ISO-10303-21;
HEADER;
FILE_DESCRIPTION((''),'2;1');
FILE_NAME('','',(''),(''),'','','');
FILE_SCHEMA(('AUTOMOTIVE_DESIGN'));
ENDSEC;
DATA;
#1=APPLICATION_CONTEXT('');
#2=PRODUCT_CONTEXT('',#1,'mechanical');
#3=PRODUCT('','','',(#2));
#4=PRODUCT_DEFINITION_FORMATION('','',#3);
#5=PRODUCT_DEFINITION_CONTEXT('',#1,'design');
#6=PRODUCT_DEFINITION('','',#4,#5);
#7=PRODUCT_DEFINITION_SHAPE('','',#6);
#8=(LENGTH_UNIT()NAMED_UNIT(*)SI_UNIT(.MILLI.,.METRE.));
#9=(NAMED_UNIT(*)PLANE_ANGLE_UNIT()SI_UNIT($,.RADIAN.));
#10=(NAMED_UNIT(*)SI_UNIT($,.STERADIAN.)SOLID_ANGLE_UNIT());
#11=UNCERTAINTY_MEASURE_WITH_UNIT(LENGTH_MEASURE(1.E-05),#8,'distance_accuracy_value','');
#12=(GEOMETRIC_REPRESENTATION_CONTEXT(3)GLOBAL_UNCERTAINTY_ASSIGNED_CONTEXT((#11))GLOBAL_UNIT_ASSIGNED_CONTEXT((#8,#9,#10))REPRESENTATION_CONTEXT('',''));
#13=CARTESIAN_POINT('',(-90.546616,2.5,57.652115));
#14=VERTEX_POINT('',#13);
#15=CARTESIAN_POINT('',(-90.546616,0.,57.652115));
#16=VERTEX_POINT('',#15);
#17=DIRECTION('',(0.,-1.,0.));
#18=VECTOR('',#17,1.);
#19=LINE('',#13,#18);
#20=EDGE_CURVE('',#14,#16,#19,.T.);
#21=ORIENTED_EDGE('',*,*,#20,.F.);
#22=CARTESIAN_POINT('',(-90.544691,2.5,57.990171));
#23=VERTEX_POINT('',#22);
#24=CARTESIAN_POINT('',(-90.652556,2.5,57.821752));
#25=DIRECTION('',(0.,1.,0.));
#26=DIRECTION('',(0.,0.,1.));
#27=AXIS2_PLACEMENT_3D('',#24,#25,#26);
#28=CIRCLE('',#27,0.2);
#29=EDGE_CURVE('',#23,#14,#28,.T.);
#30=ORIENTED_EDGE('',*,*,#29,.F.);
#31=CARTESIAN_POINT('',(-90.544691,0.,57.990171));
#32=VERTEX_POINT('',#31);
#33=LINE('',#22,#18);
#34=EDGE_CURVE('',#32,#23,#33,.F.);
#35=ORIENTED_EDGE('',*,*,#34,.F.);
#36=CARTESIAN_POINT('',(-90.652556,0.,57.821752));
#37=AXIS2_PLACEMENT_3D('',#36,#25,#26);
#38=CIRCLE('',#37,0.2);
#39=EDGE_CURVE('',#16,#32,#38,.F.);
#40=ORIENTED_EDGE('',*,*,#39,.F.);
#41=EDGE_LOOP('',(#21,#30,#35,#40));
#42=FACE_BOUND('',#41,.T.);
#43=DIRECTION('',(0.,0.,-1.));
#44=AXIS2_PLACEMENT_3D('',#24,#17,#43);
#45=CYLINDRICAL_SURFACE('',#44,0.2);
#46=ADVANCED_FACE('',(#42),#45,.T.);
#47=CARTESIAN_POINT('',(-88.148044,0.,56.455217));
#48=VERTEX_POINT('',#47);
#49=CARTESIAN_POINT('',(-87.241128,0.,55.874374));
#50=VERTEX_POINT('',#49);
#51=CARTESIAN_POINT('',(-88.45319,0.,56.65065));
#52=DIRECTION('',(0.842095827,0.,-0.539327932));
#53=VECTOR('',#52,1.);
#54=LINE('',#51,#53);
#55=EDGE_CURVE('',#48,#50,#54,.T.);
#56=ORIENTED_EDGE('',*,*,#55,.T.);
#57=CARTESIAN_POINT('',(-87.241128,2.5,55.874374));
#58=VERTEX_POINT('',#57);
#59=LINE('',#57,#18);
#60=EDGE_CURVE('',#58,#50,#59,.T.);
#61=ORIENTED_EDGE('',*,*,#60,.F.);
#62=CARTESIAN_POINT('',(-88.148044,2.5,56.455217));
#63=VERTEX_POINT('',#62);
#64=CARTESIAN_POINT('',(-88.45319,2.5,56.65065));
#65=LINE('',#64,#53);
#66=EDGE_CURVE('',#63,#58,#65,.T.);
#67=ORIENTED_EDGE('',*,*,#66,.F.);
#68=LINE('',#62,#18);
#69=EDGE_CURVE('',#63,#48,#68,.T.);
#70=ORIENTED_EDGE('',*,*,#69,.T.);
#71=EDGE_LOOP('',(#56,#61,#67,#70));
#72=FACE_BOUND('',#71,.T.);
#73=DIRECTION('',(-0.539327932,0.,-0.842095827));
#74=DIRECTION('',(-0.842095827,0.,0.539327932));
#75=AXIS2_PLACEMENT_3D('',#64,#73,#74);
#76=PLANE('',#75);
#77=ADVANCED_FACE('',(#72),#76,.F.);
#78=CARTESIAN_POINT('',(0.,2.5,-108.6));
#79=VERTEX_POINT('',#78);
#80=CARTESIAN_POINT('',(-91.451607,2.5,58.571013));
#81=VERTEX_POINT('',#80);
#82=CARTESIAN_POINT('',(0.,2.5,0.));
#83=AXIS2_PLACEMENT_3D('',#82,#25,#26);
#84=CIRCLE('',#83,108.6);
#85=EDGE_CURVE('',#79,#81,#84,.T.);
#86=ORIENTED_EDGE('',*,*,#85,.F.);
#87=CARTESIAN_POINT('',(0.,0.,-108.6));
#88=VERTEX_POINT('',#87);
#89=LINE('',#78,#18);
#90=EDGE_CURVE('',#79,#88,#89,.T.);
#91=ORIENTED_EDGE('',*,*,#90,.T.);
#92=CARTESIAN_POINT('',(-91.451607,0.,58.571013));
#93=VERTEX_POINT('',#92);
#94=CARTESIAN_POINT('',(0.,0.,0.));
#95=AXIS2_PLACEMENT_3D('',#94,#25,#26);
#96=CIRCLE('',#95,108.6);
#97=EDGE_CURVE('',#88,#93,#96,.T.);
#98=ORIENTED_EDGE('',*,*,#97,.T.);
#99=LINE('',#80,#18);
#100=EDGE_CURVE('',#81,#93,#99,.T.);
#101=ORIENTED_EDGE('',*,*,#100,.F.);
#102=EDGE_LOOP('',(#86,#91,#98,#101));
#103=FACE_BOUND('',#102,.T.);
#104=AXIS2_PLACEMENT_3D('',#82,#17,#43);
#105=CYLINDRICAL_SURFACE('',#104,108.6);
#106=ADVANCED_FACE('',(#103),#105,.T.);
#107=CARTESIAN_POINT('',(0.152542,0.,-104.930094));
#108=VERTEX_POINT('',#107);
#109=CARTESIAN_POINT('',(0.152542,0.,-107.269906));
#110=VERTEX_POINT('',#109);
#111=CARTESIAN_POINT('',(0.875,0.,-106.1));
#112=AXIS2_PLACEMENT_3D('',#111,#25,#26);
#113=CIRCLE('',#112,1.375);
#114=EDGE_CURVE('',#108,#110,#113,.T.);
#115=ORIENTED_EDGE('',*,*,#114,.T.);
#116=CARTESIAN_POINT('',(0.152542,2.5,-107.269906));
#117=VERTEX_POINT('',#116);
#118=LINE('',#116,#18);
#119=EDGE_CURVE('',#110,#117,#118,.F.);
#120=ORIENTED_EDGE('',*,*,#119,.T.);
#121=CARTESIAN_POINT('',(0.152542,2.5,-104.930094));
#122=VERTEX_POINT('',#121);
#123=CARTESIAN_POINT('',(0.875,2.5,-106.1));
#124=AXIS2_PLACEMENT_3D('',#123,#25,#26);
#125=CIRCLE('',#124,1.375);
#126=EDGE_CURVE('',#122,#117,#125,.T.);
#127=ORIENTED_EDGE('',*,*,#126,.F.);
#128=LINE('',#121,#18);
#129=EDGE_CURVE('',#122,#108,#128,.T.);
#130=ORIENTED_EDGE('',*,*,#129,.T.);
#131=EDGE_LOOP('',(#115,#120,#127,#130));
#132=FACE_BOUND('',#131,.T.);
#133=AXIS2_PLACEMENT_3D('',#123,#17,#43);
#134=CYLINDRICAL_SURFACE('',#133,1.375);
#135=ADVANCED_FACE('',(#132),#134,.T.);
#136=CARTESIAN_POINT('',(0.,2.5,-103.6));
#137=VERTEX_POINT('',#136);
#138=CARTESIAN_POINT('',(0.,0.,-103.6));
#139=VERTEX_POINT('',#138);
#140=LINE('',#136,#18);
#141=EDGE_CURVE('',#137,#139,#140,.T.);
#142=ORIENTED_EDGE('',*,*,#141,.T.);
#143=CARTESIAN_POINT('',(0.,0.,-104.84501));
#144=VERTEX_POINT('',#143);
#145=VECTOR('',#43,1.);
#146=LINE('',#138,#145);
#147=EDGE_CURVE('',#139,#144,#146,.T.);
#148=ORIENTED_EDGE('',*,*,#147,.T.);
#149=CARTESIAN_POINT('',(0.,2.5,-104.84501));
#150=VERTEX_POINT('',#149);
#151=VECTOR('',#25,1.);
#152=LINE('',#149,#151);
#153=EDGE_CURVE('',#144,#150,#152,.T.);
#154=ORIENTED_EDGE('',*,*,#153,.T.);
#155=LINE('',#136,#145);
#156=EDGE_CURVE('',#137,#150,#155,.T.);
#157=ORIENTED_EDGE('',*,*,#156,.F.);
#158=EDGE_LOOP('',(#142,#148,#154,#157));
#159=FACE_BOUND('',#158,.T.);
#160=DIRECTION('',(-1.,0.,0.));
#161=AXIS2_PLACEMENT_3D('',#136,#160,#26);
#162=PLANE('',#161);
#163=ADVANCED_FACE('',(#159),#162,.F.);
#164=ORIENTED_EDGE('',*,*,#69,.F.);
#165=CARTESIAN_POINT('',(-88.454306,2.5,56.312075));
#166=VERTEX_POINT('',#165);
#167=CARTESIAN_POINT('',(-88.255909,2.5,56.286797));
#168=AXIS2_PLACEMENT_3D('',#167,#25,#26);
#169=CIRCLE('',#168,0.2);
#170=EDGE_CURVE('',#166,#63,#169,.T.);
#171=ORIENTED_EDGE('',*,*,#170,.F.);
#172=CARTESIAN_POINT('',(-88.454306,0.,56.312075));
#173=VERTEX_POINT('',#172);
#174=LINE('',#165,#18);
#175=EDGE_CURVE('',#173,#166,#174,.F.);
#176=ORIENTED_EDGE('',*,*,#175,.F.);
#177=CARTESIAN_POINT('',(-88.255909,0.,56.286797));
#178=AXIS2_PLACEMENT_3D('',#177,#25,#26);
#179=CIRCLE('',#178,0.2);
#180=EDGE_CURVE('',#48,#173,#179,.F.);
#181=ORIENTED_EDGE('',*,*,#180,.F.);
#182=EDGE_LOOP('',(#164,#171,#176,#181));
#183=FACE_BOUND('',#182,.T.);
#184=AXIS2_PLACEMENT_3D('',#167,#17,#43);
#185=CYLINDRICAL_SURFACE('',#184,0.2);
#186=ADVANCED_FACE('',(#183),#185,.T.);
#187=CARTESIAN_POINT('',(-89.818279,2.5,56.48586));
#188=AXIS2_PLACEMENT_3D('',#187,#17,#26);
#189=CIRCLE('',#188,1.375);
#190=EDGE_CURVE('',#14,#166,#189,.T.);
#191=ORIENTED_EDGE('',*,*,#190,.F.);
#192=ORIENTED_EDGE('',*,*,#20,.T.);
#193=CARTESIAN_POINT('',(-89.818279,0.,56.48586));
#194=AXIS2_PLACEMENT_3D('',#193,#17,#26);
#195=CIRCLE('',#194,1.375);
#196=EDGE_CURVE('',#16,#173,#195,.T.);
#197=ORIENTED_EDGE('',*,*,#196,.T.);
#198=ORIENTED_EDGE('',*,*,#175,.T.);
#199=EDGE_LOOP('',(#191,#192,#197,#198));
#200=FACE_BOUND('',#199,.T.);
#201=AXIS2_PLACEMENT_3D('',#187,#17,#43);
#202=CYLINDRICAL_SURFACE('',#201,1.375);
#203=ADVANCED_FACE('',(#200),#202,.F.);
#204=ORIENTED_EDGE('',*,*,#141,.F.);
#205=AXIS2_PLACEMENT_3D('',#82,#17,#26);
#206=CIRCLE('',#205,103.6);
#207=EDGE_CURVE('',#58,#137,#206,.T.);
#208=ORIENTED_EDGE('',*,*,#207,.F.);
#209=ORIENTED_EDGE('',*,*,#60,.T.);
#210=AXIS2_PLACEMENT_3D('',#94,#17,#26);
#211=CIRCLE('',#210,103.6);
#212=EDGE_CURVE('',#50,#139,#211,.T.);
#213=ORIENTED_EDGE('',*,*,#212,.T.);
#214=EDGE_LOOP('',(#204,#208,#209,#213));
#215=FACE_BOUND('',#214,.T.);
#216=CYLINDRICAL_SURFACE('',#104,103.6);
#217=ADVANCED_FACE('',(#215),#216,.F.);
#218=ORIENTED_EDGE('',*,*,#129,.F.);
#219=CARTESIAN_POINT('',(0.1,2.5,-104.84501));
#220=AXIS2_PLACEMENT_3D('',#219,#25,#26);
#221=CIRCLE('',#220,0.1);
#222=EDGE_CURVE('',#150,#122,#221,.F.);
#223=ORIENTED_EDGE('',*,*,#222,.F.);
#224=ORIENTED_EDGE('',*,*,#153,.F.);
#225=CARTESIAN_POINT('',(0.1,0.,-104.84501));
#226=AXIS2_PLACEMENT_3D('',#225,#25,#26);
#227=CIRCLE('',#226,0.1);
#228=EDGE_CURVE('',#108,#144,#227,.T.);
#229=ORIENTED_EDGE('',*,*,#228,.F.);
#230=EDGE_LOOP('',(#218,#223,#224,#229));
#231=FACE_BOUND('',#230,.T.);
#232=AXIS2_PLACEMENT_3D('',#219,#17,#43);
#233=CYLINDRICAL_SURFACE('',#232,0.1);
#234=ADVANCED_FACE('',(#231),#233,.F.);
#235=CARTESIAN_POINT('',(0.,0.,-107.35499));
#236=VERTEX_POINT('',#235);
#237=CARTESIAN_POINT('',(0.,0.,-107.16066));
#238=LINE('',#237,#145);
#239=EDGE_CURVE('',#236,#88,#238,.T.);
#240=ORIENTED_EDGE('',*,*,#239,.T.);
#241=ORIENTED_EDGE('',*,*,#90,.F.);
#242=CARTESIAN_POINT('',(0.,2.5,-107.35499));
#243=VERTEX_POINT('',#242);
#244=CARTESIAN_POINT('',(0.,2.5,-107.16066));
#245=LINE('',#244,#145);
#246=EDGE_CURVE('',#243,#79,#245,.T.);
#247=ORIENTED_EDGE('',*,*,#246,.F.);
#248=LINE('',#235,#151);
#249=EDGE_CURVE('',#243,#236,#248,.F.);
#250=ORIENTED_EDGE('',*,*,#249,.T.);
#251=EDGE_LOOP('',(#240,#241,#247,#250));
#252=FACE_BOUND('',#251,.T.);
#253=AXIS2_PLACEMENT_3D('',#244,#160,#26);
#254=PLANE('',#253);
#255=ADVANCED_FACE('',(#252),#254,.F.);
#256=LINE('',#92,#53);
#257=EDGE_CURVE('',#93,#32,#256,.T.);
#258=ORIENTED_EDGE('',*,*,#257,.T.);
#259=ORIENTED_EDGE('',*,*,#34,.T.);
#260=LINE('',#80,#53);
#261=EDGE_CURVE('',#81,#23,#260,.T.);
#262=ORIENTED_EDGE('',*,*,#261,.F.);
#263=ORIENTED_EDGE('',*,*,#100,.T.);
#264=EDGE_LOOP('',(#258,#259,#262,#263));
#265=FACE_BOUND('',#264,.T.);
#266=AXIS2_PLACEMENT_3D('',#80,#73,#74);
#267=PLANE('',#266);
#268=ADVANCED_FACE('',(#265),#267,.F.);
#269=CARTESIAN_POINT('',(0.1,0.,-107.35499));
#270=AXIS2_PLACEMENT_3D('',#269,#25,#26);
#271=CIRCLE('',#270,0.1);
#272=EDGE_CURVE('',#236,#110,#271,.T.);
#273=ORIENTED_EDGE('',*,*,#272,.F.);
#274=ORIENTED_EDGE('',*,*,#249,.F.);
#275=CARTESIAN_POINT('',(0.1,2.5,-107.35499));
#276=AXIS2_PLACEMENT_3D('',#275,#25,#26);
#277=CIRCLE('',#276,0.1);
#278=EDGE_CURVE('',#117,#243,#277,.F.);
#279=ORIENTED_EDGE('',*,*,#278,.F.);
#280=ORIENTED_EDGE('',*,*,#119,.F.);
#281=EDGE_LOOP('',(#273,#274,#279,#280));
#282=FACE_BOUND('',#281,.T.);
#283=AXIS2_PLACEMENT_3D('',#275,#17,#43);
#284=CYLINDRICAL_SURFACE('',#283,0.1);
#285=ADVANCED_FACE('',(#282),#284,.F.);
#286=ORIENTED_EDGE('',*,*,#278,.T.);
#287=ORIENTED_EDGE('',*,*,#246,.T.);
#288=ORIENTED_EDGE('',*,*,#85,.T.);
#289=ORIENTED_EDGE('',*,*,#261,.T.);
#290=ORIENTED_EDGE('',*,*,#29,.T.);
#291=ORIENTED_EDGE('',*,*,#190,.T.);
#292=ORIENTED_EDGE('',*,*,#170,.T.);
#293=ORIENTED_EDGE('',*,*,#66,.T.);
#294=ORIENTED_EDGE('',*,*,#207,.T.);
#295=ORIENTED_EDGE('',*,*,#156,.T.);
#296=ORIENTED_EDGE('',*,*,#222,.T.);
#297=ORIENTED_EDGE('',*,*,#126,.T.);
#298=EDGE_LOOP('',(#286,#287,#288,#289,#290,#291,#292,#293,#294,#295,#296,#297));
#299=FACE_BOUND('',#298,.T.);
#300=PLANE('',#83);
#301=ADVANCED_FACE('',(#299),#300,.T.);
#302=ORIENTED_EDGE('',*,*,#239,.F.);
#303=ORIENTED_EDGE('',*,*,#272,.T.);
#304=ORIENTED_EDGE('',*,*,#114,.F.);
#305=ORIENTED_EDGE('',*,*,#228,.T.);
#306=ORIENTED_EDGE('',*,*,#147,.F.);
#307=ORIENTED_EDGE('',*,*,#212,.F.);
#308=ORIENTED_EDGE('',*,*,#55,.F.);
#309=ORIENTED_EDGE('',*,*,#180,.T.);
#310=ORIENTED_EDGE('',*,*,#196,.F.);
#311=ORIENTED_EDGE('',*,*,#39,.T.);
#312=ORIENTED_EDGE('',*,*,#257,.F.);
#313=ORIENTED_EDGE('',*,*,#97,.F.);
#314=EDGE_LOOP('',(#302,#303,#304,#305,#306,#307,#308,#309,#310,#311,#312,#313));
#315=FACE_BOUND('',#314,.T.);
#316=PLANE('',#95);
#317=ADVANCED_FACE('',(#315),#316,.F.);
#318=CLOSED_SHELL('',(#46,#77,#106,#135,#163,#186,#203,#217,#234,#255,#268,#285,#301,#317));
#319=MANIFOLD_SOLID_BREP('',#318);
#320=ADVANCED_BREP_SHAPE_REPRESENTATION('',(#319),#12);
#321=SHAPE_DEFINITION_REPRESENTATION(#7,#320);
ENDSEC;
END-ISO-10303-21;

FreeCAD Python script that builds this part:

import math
import FreeCAD as App
import Part
import Sketcher
from FreeCAD import Vector
Q = App.Units.Quantity


def edges_at(feature, points):
    """Names of the edges that pass closest to the given points."""
    edges = feature.Shape.Edges
    near = lambda p: min(range(len(edges)), key=lambda i: edges[i].distToShape(Part.Vertex(*p))[0])
    return sorted({f"Edge{near(p) + 1}" for p in points})

doc = App.newDocument("Part")
body = doc.addObject("PartDesign::Body", "Body")

sketch1 = doc.addObject("Sketcher::SketchObject", "Sketch")
body.addObject(sketch1)
sketch1.AttachmentSupport = (doc.XZ_Plane, [""])
sketch1.MapMode = "FlatFace"
sketch1.addGeometry([
    Part.LineSegment(Vector(0, -103.6, 0), Vector(0, -105.03934, 0)),
    Part.ArcOfCircle(Part.Circle(Vector(0.875, -106.1, 0), Vector(0, 0, 1), 1.375), math.radians(-129.521196), math.radians(129.521196)),
    Part.LineSegment(Vector(0, -107.16066, 0), Vector(0, -108.6, 0)),
    Part.ArcOfCircle(Part.Circle(Vector(0, 0, 0), Vector(0, 0, 1), 108.6), math.radians(147.3621), math.radians(270)),
    Part.LineSegment(Vector(-91.451607, 58.571013, 0), Vector(-90.239545, 57.794737, 0)),
    Part.ArcOfCircle(Part.Circle(Vector(-89.818279, 56.48586, 0), Vector(0, 0, 1), 1.375), math.radians(107.840904), math.radians(366.883296)),
    Part.LineSegment(Vector(-88.45319, 56.65065, 0), Vector(-87.241128, 55.874374, 0)),
    Part.ArcOfCircle(Part.Circle(Vector(0, 0, 0), Vector(0, 0, 1), 103.6), math.radians(147.3621), math.radians(270)),
], False)
sketch1.addConstraint([
    Sketcher.Constraint("Coincident", 0, 2, 1, 2),
    Sketcher.Constraint("Coincident", 1, 1, 2, 1),
    Sketcher.Constraint("Coincident", 2, 2, 3, 2),
    Sketcher.Constraint("Coincident", 3, 1, 4, 1),
    Sketcher.Constraint("Coincident", 4, 2, 5, 1),
    Sketcher.Constraint("Coincident", 5, 2, 6, 1),
    Sketcher.Constraint("Coincident", 6, 2, 7, 1),
    Sketcher.Constraint("Coincident", 7, 2, 0, 1),
    Sketcher.Constraint("Vertical", 0),
    Sketcher.Constraint("Vertical", 2),
    Sketcher.Constraint("Coincident", 3, 3, -1, 1),
    Sketcher.Constraint("Coincident", 7, 3, -1, 1),
    Sketcher.Constraint("Equal", 1, 5),
    Sketcher.Constraint("PointOnObject", 0, 2, -2),
    Sketcher.Constraint("PointOnObject", 1, 1, -2),
    Sketcher.Constraint("Parallel", 4, 6),
    Sketcher.Constraint("Equal", 0, 2),
    Sketcher.Constraint("Equal", 4, 6),
    Sketcher.Constraint("Radius", 3, Q("108.6 mm")),
    Sketcher.Constraint("Radius", 7, Q("103.6 mm")),
    Sketcher.Constraint("Radius", 1, Q("1.375 mm")),
    Sketcher.Constraint("DistanceX", -1, 1, 1, 3, Q("0.875 mm")),
    Sketcher.Constraint("DistanceY", 0, 2, 5, 3, Q("161.5252 mm")),
    Sketcher.Constraint("Distance", 4, Q("1.43934 mm")),
    Sketcher.Constraint("DistanceX", 5, 3, -1, 1, Q("89.818279 mm")),
    Sketcher.Constraint("DistanceX", 5, 3, 6, 2, Q("2.577152 mm")),
])
pad1 = doc.addObject("PartDesign::Pad", "Pad")
body.addObject(pad1)
pad1.Profile = sketch1
pad1.Length = 2.5
pad1.Reversed = True
doc.recompute()

fillet = doc.addObject("PartDesign::Fillet", "Fillet")
body.addObject(fillet)
fillet.Base = (pad1, edges_at(pad1, [(-88.453, 1.25, 56.651), (-90.24, 1.25, 57.795)]))
fillet.Radius = 0.2
doc.recompute()

fillet2 = doc.addObject("PartDesign::Fillet", "Fillet001")
body.addObject(fillet2)
fillet2.Base = (fillet, edges_at(fillet, [(0, 1.25, -107.161), (0, 1.25, -105.039)]))
fillet2.Radius = 0.1

doc.recompute()
